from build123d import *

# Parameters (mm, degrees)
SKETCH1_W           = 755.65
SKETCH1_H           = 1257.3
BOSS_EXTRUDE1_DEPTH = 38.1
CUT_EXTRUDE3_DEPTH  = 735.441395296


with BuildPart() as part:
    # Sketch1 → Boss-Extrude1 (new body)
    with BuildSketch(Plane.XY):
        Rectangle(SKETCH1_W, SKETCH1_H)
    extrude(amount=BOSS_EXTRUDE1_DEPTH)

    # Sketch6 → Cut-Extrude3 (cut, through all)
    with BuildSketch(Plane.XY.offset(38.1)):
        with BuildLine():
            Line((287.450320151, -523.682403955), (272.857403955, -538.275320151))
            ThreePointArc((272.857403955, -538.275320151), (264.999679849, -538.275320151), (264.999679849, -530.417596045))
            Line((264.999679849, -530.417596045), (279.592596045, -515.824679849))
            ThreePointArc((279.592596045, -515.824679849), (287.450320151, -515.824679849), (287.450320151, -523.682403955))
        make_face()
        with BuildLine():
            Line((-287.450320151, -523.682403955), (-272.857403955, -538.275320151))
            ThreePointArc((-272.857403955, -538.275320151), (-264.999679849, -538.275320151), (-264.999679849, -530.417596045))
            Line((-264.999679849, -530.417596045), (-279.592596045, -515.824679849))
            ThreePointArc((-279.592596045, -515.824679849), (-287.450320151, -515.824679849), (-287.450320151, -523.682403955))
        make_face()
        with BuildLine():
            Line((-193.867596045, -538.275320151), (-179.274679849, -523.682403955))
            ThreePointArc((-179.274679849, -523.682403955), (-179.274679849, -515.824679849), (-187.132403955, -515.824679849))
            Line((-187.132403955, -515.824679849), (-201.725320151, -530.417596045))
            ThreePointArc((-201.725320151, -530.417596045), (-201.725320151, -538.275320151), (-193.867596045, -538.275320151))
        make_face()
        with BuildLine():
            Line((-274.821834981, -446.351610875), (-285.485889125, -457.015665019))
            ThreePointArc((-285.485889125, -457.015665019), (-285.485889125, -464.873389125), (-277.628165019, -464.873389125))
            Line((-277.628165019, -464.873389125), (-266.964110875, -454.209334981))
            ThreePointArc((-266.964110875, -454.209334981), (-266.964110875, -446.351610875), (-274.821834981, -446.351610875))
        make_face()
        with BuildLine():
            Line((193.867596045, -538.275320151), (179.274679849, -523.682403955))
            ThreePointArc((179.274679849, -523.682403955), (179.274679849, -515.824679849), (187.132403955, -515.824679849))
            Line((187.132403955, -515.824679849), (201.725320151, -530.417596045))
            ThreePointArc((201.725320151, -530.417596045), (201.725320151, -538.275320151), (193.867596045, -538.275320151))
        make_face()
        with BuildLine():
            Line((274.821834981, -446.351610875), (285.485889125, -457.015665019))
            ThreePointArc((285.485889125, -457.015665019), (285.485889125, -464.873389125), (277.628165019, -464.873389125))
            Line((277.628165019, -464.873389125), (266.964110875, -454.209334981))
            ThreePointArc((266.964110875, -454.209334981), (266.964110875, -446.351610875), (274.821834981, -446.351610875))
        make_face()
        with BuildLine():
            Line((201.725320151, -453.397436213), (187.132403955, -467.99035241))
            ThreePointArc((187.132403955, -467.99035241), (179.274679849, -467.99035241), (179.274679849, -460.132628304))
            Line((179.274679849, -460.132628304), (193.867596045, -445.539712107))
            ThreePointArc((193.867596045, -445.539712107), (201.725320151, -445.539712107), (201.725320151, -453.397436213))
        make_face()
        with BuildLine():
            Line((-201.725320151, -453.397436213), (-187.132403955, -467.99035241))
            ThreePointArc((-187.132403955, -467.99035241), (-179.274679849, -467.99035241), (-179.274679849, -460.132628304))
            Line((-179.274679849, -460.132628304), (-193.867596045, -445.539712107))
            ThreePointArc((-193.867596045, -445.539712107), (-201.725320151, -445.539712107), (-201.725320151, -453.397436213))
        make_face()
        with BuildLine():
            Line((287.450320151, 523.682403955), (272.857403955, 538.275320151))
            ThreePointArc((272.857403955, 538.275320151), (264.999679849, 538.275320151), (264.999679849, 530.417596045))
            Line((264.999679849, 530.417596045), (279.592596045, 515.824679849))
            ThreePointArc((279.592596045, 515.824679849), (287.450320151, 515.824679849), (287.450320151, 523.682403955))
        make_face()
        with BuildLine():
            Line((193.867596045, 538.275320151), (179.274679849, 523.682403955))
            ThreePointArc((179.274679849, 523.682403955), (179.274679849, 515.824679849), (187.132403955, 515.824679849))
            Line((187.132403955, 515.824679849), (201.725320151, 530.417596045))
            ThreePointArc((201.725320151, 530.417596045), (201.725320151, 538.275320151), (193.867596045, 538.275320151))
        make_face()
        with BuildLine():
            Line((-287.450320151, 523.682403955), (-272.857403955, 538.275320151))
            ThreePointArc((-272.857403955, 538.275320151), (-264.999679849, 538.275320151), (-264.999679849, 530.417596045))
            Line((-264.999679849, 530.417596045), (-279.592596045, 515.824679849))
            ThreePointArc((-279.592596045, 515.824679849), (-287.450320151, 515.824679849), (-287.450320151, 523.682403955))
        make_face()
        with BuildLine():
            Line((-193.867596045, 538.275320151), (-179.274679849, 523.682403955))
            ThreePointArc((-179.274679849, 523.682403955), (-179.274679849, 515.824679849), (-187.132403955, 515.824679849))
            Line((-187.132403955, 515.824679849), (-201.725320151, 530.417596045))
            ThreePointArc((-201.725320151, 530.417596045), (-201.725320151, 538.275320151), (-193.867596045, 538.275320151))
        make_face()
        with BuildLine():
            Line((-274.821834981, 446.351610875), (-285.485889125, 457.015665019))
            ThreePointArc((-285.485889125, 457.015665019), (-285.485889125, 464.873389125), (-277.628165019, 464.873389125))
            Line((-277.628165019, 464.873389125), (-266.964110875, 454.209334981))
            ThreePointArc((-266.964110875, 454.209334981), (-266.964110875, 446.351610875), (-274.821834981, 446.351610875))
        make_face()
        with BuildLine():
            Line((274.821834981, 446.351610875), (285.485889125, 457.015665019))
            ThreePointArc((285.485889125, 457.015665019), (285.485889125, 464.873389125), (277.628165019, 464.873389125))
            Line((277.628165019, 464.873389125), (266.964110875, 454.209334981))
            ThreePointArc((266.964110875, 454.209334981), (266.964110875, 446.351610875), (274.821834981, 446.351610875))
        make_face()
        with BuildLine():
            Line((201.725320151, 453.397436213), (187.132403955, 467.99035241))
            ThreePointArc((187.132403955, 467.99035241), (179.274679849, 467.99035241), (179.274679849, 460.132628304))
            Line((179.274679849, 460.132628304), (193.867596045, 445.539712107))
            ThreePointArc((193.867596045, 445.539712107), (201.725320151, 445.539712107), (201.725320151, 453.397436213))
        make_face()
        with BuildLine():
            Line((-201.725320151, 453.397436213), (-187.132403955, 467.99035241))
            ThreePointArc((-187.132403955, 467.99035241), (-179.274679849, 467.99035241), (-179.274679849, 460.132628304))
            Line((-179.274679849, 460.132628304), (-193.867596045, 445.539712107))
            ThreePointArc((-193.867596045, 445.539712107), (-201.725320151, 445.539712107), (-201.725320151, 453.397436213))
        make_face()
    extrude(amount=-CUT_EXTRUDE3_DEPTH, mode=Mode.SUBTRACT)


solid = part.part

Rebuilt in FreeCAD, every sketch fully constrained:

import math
import FreeCAD as App
import Part
import Sketcher

V = App.Vector
Q = App.Units.Quantity

doc = App.newDocument("Part")
body = doc.addObject("PartDesign::Body", "Body")

# Sketch on XY plane
sketch1 = body.newObject("Sketcher::SketchObject", "Sketch")
sketch1.AttachmentSupport = (doc.getObject("XY_Plane"), [""])
sketch1.MapMode = "FlatFace"
sketch1.addGeometry(Part.LineSegment(V(-378, 629, 0), V(-378, -629, 0)), False)
sketch1.addGeometry(Part.LineSegment(V(-378, -629, 0), V(378, -629, 0)), False)
sketch1.addGeometry(Part.LineSegment(V(378, -629, 0), V(378, 629, 0)), False)
sketch1.addGeometry(Part.LineSegment(V(378, 629, 0), V(-378, 629, 0)), False)
sketch1.addConstraint(Sketcher.Constraint("Coincident", 0, 2, 1, 1))
sketch1.addConstraint(Sketcher.Constraint("Coincident", 1, 2, 2, 1))
sketch1.addConstraint(Sketcher.Constraint("Coincident", 2, 2, 3, 1))
sketch1.addConstraint(Sketcher.Constraint("Coincident", 3, 2, 0, 1))
sketch1.addConstraint(Sketcher.Constraint("Vertical", 0))
sketch1.addConstraint(Sketcher.Constraint("Horizontal", 1))
sketch1.addConstraint(Sketcher.Constraint("Vertical", 2))
sketch1.addConstraint(Sketcher.Constraint("Horizontal", 3))
sketch1.addConstraint(Sketcher.Constraint("Symmetric", 0, 2, 2, 2, -1, 1))
sketch1.addConstraint(Sketcher.Constraint("DistanceY", 0, 2, 0, 1, Q("49.5 in")))
sketch1.addConstraint(Sketcher.Constraint("DistanceX", 1, 1, 1, 2, Q("29.75 in")))
pad1 = body.newObject("PartDesign::Pad", "Pad")
pad1.Profile = sketch1
pad1.Length = Q("1.5 in")

# Sketch on XY plane
sketch2 = body.newObject("Sketcher::SketchObject", "Sketch001")
sketch2.AttachmentSupport = (doc.getObject("XY_Plane"), [""])
sketch2.MapMode = "FlatFace"
sketch2.AttachmentOffset = App.Placement(V(0, 0, 1.5 * 25.4), App.Rotation())
sketch2.addGeometry(Part.LineSegment(V(273, -538, 0), V(287, -524, 0)), False)
sketch2.addGeometry(Part.ArcOfCircle(Part.Circle(V(284, -520, 0), V(0, 0, 1), 6), math.radians(-45), math.radians(135)), False)
sketch2.addGeometry(Part.LineSegment(V(280, -516, 0), V(265, -530, 0)), False)
sketch2.addGeometry(Part.ArcOfCircle(Part.Circle(V(269, -534, 0), V(0, 0, 1), 6), math.radians(135), math.radians(315)), False)
sketch2.addGeometry(Part.LineSegment(V(-287, -524, 0), V(-273, -538, 0)), False)
sketch2.addGeometry(Part.ArcOfCircle(Part.Circle(V(-269, -534, 0), V(0, 0, 1), 6), math.radians(-135), math.radians(45)), False)
sketch2.addGeometry(Part.LineSegment(V(-265, -530, 0), V(-280, -516, 0)), False)
sketch2.addGeometry(Part.ArcOfCircle(Part.Circle(V(-284, -520, 0), V(0, 0, 1), 6), math.radians(45), math.radians(225)), False)
sketch2.addGeometry(Part.LineSegment(V(-194, -538, 0), V(-179, -524, 0)), False)
sketch2.addGeometry(Part.ArcOfCircle(Part.Circle(V(-183, -520, 0), V(0, 0, 1), 6), math.radians(-45), math.radians(135)), False)
sketch2.addGeometry(Part.LineSegment(V(-187, -516, 0), V(-202, -530, 0)), False)
sketch2.addGeometry(Part.ArcOfCircle(Part.Circle(V(-198, -534, 0), V(0, 0, 1), 6), math.radians(135), math.radians(315)), False)
sketch2.addGeometry(Part.LineSegment(V(-275, -446, 0), V(-285, -457, 0)), False)
sketch2.addGeometry(Part.ArcOfCircle(Part.Circle(V(-282, -461, 0), V(0, 0, 1), 6), math.radians(135), math.radians(315)), False)
sketch2.addGeometry(Part.LineSegment(V(-278, -465, 0), V(-267, -454, 0)), False)
sketch2.addGeometry(Part.ArcOfCircle(Part.Circle(V(-271, -450, 0), V(0, 0, 1), 6), math.radians(-45), math.radians(135)), False)
sketch2.addGeometry(Part.LineSegment(V(179, -524, 0), V(194, -538, 0)), False)
sketch2.addGeometry(Part.ArcOfCircle(Part.Circle(V(198, -534, 0), V(0, 0, 1), 6), math.radians(-135), math.radians(45)), False)
sketch2.addGeometry(Part.LineSegment(V(202, -530, 0), V(187, -516, 0)), False)
sketch2.addGeometry(Part.ArcOfCircle(Part.Circle(V(183, -520, 0), V(0, 0, 1), 6), math.radians(45), math.radians(225)), False)
sketch2.addGeometry(Part.LineSegment(V(285, -457, 0), V(275, -446, 0)), False)
sketch2.addGeometry(Part.ArcOfCircle(Part.Circle(V(271, -450, 0), V(0, 0, 1), 6), math.radians(45), math.radians(225)), False)
sketch2.addGeometry(Part.LineSegment(V(267, -454, 0), V(278, -465, 0)), False)
sketch2.addGeometry(Part.ArcOfCircle(Part.Circle(V(282, -461, 0), V(0, 0, 1), 6), math.radians(-135), math.radians(45)), False)
sketch2.addGeometry(Part.LineSegment(V(187, -468, 0), V(202, -453, 0)), False)
sketch2.addGeometry(Part.ArcOfCircle(Part.Circle(V(198, -449, 0), V(0, 0, 1), 6), math.radians(-45), math.radians(135)), False)
sketch2.addGeometry(Part.LineSegment(V(194, -446, 0), V(179, -460, 0)), False)
sketch2.addGeometry(Part.ArcOfCircle(Part.Circle(V(183, -464, 0), V(0, 0, 1), 6), math.radians(135), math.radians(315)), False)
sketch2.addGeometry(Part.LineSegment(V(-202, -453, 0), V(-187, -468, 0)), False)
sketch2.addGeometry(Part.ArcOfCircle(Part.Circle(V(-183, -464, 0), V(0, 0, 1), 6), math.radians(-135), math.radians(45)), False)
sketch2.addGeometry(Part.LineSegment(V(-179, -460, 0), V(-194, -446, 0)), False)
sketch2.addGeometry(Part.ArcOfCircle(Part.Circle(V(-198, -449, 0), V(0, 0, 1), 6), math.radians(45), math.radians(225)), False)
sketch2.addGeometry(Part.LineSegment(V(287, 524, 0), V(273, 538, 0)), False)
sketch2.addGeometry(Part.ArcOfCircle(Part.Circle(V(269, 534, 0), V(0, 0, 1), 6), math.radians(45), math.radians(225)), False)
sketch2.addGeometry(Part.LineSegment(V(265, 530, 0), V(280, 516, 0)), False)
sketch2.addGeometry(Part.ArcOfCircle(Part.Circle(V(284, 520, 0), V(0, 0, 1), 6), math.radians(-135), math.radians(45)), False)
sketch2.addGeometry(Part.LineSegment(V(194, 538, 0), V(179, 524, 0)), False)
sketch2.addGeometry(Part.ArcOfCircle(Part.Circle(V(183, 520, 0), V(0, 0, 1), 6), math.radians(135), math.radians(315)), False)
sketch2.addGeometry(Part.LineSegment(V(187, 516, 0), V(202, 530, 0)), False)
sketch2.addGeometry(Part.ArcOfCircle(Part.Circle(V(198, 534, 0), V(0, 0, 1), 6), math.radians(-45), math.radians(135)), False)
sketch2.addGeometry(Part.LineSegment(V(-273, 538, 0), V(-287, 524, 0)), False)
sketch2.addGeometry(Part.ArcOfCircle(Part.Circle(V(-284, 520, 0), V(0, 0, 1), 6), math.radians(135), math.radians(315)), False)
sketch2.addGeometry(Part.LineSegment(V(-280, 516, 0), V(-265, 530, 0)), False)
sketch2.addGeometry(Part.ArcOfCircle(Part.Circle(V(-269, 534, 0), V(0, 0, 1), 6), math.radians(-45), math.radians(135)), False)
sketch2.addGeometry(Part.LineSegment(V(-179, 524, 0), V(-194, 538, 0)), False)
sketch2.addGeometry(Part.ArcOfCircle(Part.Circle(V(-198, 534, 0), V(0, 0, 1), 6), math.radians(45), math.radians(225)), False)
sketch2.addGeometry(Part.LineSegment(V(-202, 530, 0), V(-187, 516, 0)), False)
sketch2.addGeometry(Part.ArcOfCircle(Part.Circle(V(-183, 520, 0), V(0, 0, 1), 6), math.radians(-135), math.radians(45)), False)
sketch2.addGeometry(Part.LineSegment(V(-285, 457, 0), V(-275, 446, 0)), False)
sketch2.addGeometry(Part.ArcOfCircle(Part.Circle(V(-271, 450, 0), V(0, 0, 1), 6), math.radians(-135), math.radians(45)), False)
sketch2.addGeometry(Part.LineSegment(V(-267, 454, 0), V(-278, 465, 0)), False)
sketch2.addGeometry(Part.ArcOfCircle(Part.Circle(V(-282, 461, 0), V(0, 0, 1), 6), math.radians(45), math.radians(225)), False)
sketch2.addGeometry(Part.LineSegment(V(275, 446, 0), V(285, 457, 0)), False)
sketch2.addGeometry(Part.ArcOfCircle(Part.Circle(V(282, 461, 0), V(0, 0, 1), 6), math.radians(-45), math.radians(135)), False)
sketch2.addGeometry(Part.LineSegment(V(278, 465, 0), V(267, 454, 0)), False)
sketch2.addGeometry(Part.ArcOfCircle(Part.Circle(V(271, 450, 0), V(0, 0, 1), 6), math.radians(135), math.radians(315)), False)
sketch2.addGeometry(Part.LineSegment(V(202, 453, 0), V(187, 468, 0)), False)
sketch2.addGeometry(Part.ArcOfCircle(Part.Circle(V(183, 464, 0), V(0, 0, 1), 6), math.radians(45), math.radians(225)), False)
sketch2.addGeometry(Part.LineSegment(V(179, 460, 0), V(194, 446, 0)), False)
sketch2.addGeometry(Part.ArcOfCircle(Part.Circle(V(198, 449, 0), V(0, 0, 1), 6), math.radians(-135), math.radians(45)), False)
sketch2.addGeometry(Part.LineSegment(V(-187, 468, 0), V(-202, 453, 0)), False)
sketch2.addGeometry(Part.ArcOfCircle(Part.Circle(V(-198, 449, 0), V(0, 0, 1), 6), math.radians(135), math.radians(315)), False)
sketch2.addGeometry(Part.LineSegment(V(-194, 446, 0), V(-179, 460, 0)), False)
sketch2.addGeometry(Part.ArcOfCircle(Part.Circle(V(-183, 464, 0), V(0, 0, 1), 6), math.radians(-45), math.radians(135)), False)
sketch2.addConstraint(Sketcher.Constraint("Tangent", 0, 2, 1, 1))
sketch2.addConstraint(Sketcher.Constraint("Tangent", 1, 2, 2, 1))
sketch2.addConstraint(Sketcher.Constraint("Tangent", 2, 2, 3, 1))
sketch2.addConstraint(Sketcher.Constraint("Tangent", 3, 2, 0, 1))
sketch2.addConstraint(Sketcher.Constraint("Tangent", 4, 2, 5, 1))
sketch2.addConstraint(Sketcher.Constraint("Tangent", 5, 2, 6, 1))
sketch2.addConstraint(Sketcher.Constraint("Tangent", 6, 2, 7, 1))
sketch2.addConstraint(Sketcher.Constraint("Tangent", 7, 2, 4, 1))
sketch2.addConstraint(Sketcher.Constraint("Tangent", 8, 2, 9, 1))
sketch2.addConstraint(Sketcher.Constraint("Tangent", 9, 2, 10, 1))
sketch2.addConstraint(Sketcher.Constraint("Tangent", 10, 2, 11, 1))
sketch2.addConstraint(Sketcher.Constraint("Tangent", 11, 2, 8, 1))
sketch2.addConstraint(Sketcher.Constraint("Tangent", 12, 2, 13, 1))
sketch2.addConstraint(Sketcher.Constraint("Tangent", 13, 2, 14, 1))
sketch2.addConstraint(Sketcher.Constraint("Tangent", 14, 2, 15, 1))
sketch2.addConstraint(Sketcher.Constraint("Tangent", 15, 2, 12, 1))
sketch2.addConstraint(Sketcher.Constraint("Tangent", 16, 2, 17, 1))
sketch2.addConstraint(Sketcher.Constraint("Tangent", 17, 2, 18, 1))
sketch2.addConstraint(Sketcher.Constraint("Tangent", 18, 2, 19, 1))
sketch2.addConstraint(Sketcher.Constraint("Tangent", 19, 2, 16, 1))
sketch2.addConstraint(Sketcher.Constraint("Tangent", 20, 2, 21, 1))
sketch2.addConstraint(Sketcher.Constraint("Tangent", 21, 2, 22, 1))
sketch2.addConstraint(Sketcher.Constraint("Tangent", 22, 2, 23, 1))
sketch2.addConstraint(Sketcher.Constraint("Tangent", 23, 2, 20, 1))
sketch2.addConstraint(Sketcher.Constraint("Tangent", 24, 2, 25, 1))
sketch2.addConstraint(Sketcher.Constraint("Tangent", 25, 2, 26, 1))
sketch2.addConstraint(Sketcher.Constraint("Tangent", 26, 2, 27, 1))
sketch2.addConstraint(Sketcher.Constraint("Tangent", 27, 2, 24, 1))
sketch2.addConstraint(Sketcher.Constraint("Tangent", 28, 2, 29, 1))
sketch2.addConstraint(Sketcher.Constraint("Tangent", 29, 2, 30, 1))
sketch2.addConstraint(Sketcher.Constraint("Tangent", 30, 2, 31, 1))
sketch2.addConstraint(Sketcher.Constraint("Tangent", 31, 2, 28, 1))
sketch2.addConstraint(Sketcher.Constraint("Tangent", 32, 2, 33, 1))
sketch2.addConstraint(Sketcher.Constraint("Tangent", 33, 2, 34, 1))
sketch2.addConstraint(Sketcher.Constraint("Tangent", 34, 2, 35, 1))
sketch2.addConstraint(Sketcher.Constraint("Tangent", 35, 2, 32, 1))
sketch2.addConstraint(Sketcher.Constraint("Tangent", 36, 2, 37, 1))
sketch2.addConstraint(Sketcher.Constraint("Tangent", 37, 2, 38, 1))
sketch2.addConstraint(Sketcher.Constraint("Tangent", 38, 2, 39, 1))
sketch2.addConstraint(Sketcher.Constraint("Tangent", 39, 2, 36, 1))
sketch2.addConstraint(Sketcher.Constraint("Tangent", 40, 2, 41, 1))
sketch2.addConstraint(Sketcher.Constraint("Tangent", 41, 2, 42, 1))
sketch2.addConstraint(Sketcher.Constraint("Tangent", 42, 2, 43, 1))
sketch2.addConstraint(Sketcher.Constraint("Tangent", 43, 2, 40, 1))
sketch2.addConstraint(Sketcher.Constraint("Tangent", 44, 2, 45, 1))
sketch2.addConstraint(Sketcher.Constraint("Tangent", 45, 2, 46, 1))
sketch2.addConstraint(Sketcher.Constraint("Tangent", 46, 2, 47, 1))
sketch2.addConstraint(Sketcher.Constraint("Tangent", 47, 2, 44, 1))
sketch2.addConstraint(Sketcher.Constraint("Tangent", 48, 2, 49, 1))
sketch2.addConstraint(Sketcher.Constraint("Tangent", 49, 2, 50, 1))
sketch2.addConstraint(Sketcher.Constraint("Tangent", 50, 2, 51, 1))
sketch2.addConstraint(Sketcher.Constraint("Tangent", 51, 2, 48, 1))
sketch2.addConstraint(Sketcher.Constraint("Tangent", 52, 2, 53, 1))
sketch2.addConstraint(Sketcher.Constraint("Tangent", 53, 2, 54, 1))
sketch2.addConstraint(Sketcher.Constraint("Tangent", 54, 2, 55, 1))
sketch2.addConstraint(Sketcher.Constraint("Tangent", 55, 2, 52, 1))
sketch2.addConstraint(Sketcher.Constraint("Tangent", 56, 2, 57, 1))
sketch2.addConstraint(Sketcher.Constraint("Tangent", 57, 2, 58, 1))
sketch2.addConstraint(Sketcher.Constraint("Tangent", 58, 2, 59, 1))
sketch2.addConstraint(Sketcher.Constraint("Tangent", 59, 2, 56, 1))
sketch2.addConstraint(Sketcher.Constraint("Tangent", 60, 2, 61, 1))
sketch2.addConstraint(Sketcher.Constraint("Tangent", 61, 2, 62, 1))
sketch2.addConstraint(Sketcher.Constraint("Tangent", 62, 2, 63, 1))
sketch2.addConstraint(Sketcher.Constraint("Tangent", 63, 2, 60, 1))
sketch2.addConstraint(Sketcher.Constraint("Equal", 1, 3))
sketch2.addConstraint(Sketcher.Constraint("Equal", 3, 5))
sketch2.addConstraint(Sketcher.Constraint("Equal", 5, 7))
sketch2.addConstraint(Sketcher.Constraint("Equal", 7, 9))
sketch2.addConstraint(Sketcher.Constraint("Equal", 9, 11))
sketch2.addConstraint(Sketcher.Constraint("Equal", 11, 13))
sketch2.addConstraint(Sketcher.Constraint("Equal", 13, 15))
sketch2.addConstraint(Sketcher.Constraint("Equal", 15, 17))
sketch2.addConstraint(Sketcher.Constraint("Equal", 17, 19))
sketch2.addConstraint(Sketcher.Constraint("Equal", 19, 21))
sketch2.addConstraint(Sketcher.Constraint("Equal", 21, 23))
sketch2.addConstraint(Sketcher.Constraint("Equal", 23, 25))
sketch2.addConstraint(Sketcher.Constraint("Equal", 25, 27))
sketch2.addConstraint(Sketcher.Constraint("Equal", 27, 29))
sketch2.addConstraint(Sketcher.Constraint("Equal", 29, 31))
sketch2.addConstraint(Sketcher.Constraint("Equal", 31, 33))
sketch2.addConstraint(Sketcher.Constraint("Equal", 33, 35))
sketch2.addConstraint(Sketcher.Constraint("Equal", 35, 37))
sketch2.addConstraint(Sketcher.Constraint("Equal", 37, 39))
sketch2.addConstraint(Sketcher.Constraint("Equal", 39, 41))
sketch2.addConstraint(Sketcher.Constraint("Equal", 41, 43))
sketch2.addConstraint(Sketcher.Constraint("Equal", 43, 45))
sketch2.addConstraint(Sketcher.Constraint("Equal", 45, 47))
sketch2.addConstraint(Sketcher.Constraint("Equal", 47, 49))
sketch2.addConstraint(Sketcher.Constraint("Equal", 49, 51))
sketch2.addConstraint(Sketcher.Constraint("Equal", 51, 53))
sketch2.addConstraint(Sketcher.Constraint("Equal", 53, 55))
sketch2.addConstraint(Sketcher.Constraint("Equal", 55, 57))
sketch2.addConstraint(Sketcher.Constraint("Equal", 57, 59))
sketch2.addConstraint(Sketcher.Constraint("Equal", 59, 61))
sketch2.addConstraint(Sketcher.Constraint("Equal", 61, 63))
sketch2.addConstraint(Sketcher.Constraint("Symmetric", 5, 3, 33, 3, -1, 1))
sketch2.addConstraint(Sketcher.Constraint("Symmetric", 7, 3, 35, 3, -1, 1))
sketch2.addConstraint(Sketcher.Constraint("Symmetric", 9, 3, 37, 3, -1, 1))
sketch2.addConstraint(Sketcher.Constraint("Symmetric", 11, 3, 39, 3, -1, 1))
sketch2.addConstraint(Sketcher.Constraint("Symmetric", 1, 3, 41, 3, -1, 1))
sketch2.addConstraint(Sketcher.Constraint("Symmetric", 3, 3, 43, 3, -1, 1))
sketch2.addConstraint(Sketcher.Constraint("Symmetric", 17, 3, 45, 3, -1, 1))
sketch2.addConstraint(Sketcher.Constraint("Symmetric", 19, 3, 47, 3, -1, 1))
sketch2.addConstraint(Sketcher.Constraint("Symmetric", 21, 3, 49, 3, -1, 1))
sketch2.addConstraint(Sketcher.Constraint("Symmetric", 23, 3, 51, 3, -1, 1))
sketch2.addConstraint(Sketcher.Constraint("Symmetric", 13, 3, 53, 3, -1, 1))
sketch2.addConstraint(Sketcher.Constraint("Symmetric", 15, 3, 55, 3, -1, 1))
sketch2.addConstraint(Sketcher.Constraint("Symmetric", 29, 3, 57, 3, -1, 1))
sketch2.addConstraint(Sketcher.Constraint("Symmetric", 31, 3, 59, 3, -1, 1))
sketch2.addConstraint(Sketcher.Constraint("Symmetric", 25, 3, 61, 3, -1, 1))
sketch2.addConstraint(Sketcher.Constraint("Symmetric", 27, 3, 63, 3, -1, 1))
sketch2.addConstraint(Sketcher.Constraint("Symmetric", 3, 3, 5, 3, -2))
sketch2.addConstraint(Sketcher.Constraint("Symmetric", 1, 3, 7, 3, -2))
sketch2.addConstraint(Sketcher.Constraint("Symmetric", 11, 3, 17, 3, -2))
sketch2.addConstraint(Sketcher.Constraint("Symmetric", 9, 3, 19, 3, -2))
sketch2.addConstraint(Sketcher.Constraint("Symmetric", 15, 3, 21, 3, -2))
sketch2.addConstraint(Sketcher.Constraint("Symmetric", 13, 3, 23, 3, -2))
sketch2.addConstraint(Sketcher.Constraint("Symmetric", 27, 3, 29, 3, -2))
sketch2.addConstraint(Sketcher.Constraint("Symmetric", 25, 3, 31, 3, -2))
sketch2.addConstraint(Sketcher.Constraint("Perpendicular", 2, 4))
sketch2.addConstraint(Sketcher.Constraint("Perpendicular", 6, 8))
sketch2.addConstraint(Sketcher.Constraint("Parallel", 10, 12))
sketch2.addConstraint(Sketcher.Constraint("Perpendicular", 22, 24))
sketch2.addConstraint(Sketcher.Constraint("Horizontal", 7, 3, 9, 3))
sketch2.addConstraint(Sketcher.Constraint("Horizontal", 5, 3, 11, 3))
sketch2.addConstraint(Sketcher.Constraint("Vertical", 17, 3, 25, 3))
sketch2.addConstraint(Sketcher.Constraint("Vertical", 19, 3, 27, 3))
sketch2.addConstraint(Sketcher.Constraint("Radius", 1, Q("0.21875 in")))
sketch2.addConstraint(Sketcher.Constraint("Distance", 0, Q("0.8125 in")))
sketch2.addConstraint(Sketcher.Constraint("Distance", 12, Q("0.59375 in")))
sketch2.addConstraint(Sketcher.Constraint("DistanceX", -1, 1, 1, 3, 283.521458))
sketch2.addConstraint(Sketcher.Constraint("DistanceY", 1, 3, -1, 1, 519.753542))
sketch2.addConstraint(Sketcher.Constraint("DistanceX", 9, 3, -1, 1, 183.203542))
sketch2.addConstraint(Sketcher.Constraint("DistanceY", 27, 3, -1, 1, 464.06149))
sketch2.addConstraint(Sketcher.Constraint("DistanceX", 12, 2, -1, 1, 285.485889))
sketch2.addConstraint(Sketcher.Constraint("DistanceY", 13, 2, -1, 1, 464.873389))
pocket1 = body.newObject("PartDesign::Pocket", "Pocket")
pocket1.Profile = sketch2
pocket1.Type = "ThroughAll"

doc.recompute()
